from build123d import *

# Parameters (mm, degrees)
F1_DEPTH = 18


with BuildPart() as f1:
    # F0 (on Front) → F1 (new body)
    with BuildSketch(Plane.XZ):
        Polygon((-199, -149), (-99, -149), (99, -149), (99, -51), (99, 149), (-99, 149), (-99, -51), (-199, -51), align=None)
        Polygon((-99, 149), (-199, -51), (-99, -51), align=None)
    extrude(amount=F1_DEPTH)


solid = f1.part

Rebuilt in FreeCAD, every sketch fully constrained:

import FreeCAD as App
import Part
import Sketcher
from FreeCAD import Vector


def add_polygon(sketch, points):
    """Adds a closed chain of lines whose ends are joined by coincident constraints."""
    first, n = sketch.GeometryCount, len(points)
    for a, b in zip(points, points[1:] + points[:1]):
        sketch.addGeometry(Part.LineSegment(App.Vector(*a, 0), App.Vector(*b, 0)), False)
    for i in range(n):
        sketch.addConstraint(Sketcher.Constraint("Coincident", first + i, 2, first + (i + 1) % n, 1))

doc = App.newDocument("Part")
body = doc.addObject("PartDesign::Body", "Body")

# Sketch on XZ plane
sketch1 = doc.addObject("Sketcher::SketchObject", "Sketch")
body.addObject(sketch1)
sketch1.AttachmentSupport = (doc.XZ_Plane, [""])
sketch1.MapMode = "FlatFace"
add_polygon(sketch1, [(-199, -149), (99, -149), (99, 149), (-99, 149), (-199, -51)])  # lines 0-4
sketch1.addConstraint([
    Sketcher.Constraint("Horizontal", 0),
    Sketcher.Constraint("Vertical", 1),
    Sketcher.Constraint("Horizontal", 2),
    Sketcher.Constraint("Vertical", 4),
    Sketcher.Constraint("Symmetric", 0, 2, 2, 2, -1, 1),
    Sketcher.Constraint("Equal", 0, 1),
    Sketcher.Constraint("DistanceX", 0, 1, 0, 2, 298.0),
    Sketcher.Constraint("DistanceX", 2, 2, 2, 1, 198.0),
    Sketcher.Constraint("DistanceY", 4, 2, 4, 1, 98.0),
])
pad1 = doc.addObject("PartDesign::Pad", "Pad")
body.addObject(pad1)
pad1.Profile = sketch1
pad1.Length = 18

doc.recompute()
